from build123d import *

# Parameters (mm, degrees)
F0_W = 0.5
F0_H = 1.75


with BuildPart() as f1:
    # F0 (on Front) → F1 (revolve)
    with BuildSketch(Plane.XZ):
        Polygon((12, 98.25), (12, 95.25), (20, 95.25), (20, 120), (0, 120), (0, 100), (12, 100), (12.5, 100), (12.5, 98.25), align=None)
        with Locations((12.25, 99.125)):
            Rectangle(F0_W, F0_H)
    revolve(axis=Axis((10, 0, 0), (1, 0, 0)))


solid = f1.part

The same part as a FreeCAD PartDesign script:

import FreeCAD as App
import Part
import Sketcher

V = App.Vector
Q = App.Units.Quantity


def add_polygon(sketch, points):
    """Adds a closed chain of lines whose ends are joined by coincident constraints."""
    first, n = sketch.GeometryCount, len(points)
    for a, b in zip(points, points[1:] + points[:1]):
        sketch.addGeometry(Part.LineSegment(App.Vector(*a, 0), App.Vector(*b, 0)), False)
    for i in range(n):
        sketch.addConstraint(Sketcher.Constraint("Coincident", first + i, 2, first + (i + 1) % n, 1))

doc = App.newDocument("Part")
body = doc.addObject("PartDesign::Body", "Body")

# Sketch on XZ plane
sketch1 = body.newObject("Sketcher::SketchObject", "Sketch")
sketch1.AttachmentSupport = (doc.getObject("XZ_Plane"), [""])
sketch1.MapMode = "FlatFace"
add_polygon(sketch1, [(12, 95.2), (20, 95.2), (20, 120), (0, 120), (0, 100), (12, 100)])  # lines 0-5
sketch1.addConstraint([
    Sketcher.Constraint("Horizontal", 0),
    Sketcher.Constraint("Vertical", 1),
    Sketcher.Constraint("Horizontal", 2),
    Sketcher.Constraint("Vertical", 3),
    Sketcher.Constraint("Horizontal", 4),
    Sketcher.Constraint("Vertical", 5),
    Sketcher.Constraint("PointOnObject", 2, 2, -2),
    Sketcher.Constraint("Equal", 2, 3),
    Sketcher.Constraint("DistanceX", 0, 1, 0, 2, Q("8 mm")),
    Sketcher.Constraint("DistanceX", 2, 2, 2, 1, Q("20 mm")),
    Sketcher.Constraint("DistanceY", -1, 1, 1, 2, Q("120 mm")),
    Sketcher.Constraint("DistanceY", 1, 1, 1, 2, Q("24.75 mm")),
])
revolution = body.newObject("PartDesign::Revolution", "Revolution")
revolution.Profile = sketch1
revolution.ReferenceAxis = (sketch1, ["H_Axis"])
revolution.Angle = 360

doc.recompute()
